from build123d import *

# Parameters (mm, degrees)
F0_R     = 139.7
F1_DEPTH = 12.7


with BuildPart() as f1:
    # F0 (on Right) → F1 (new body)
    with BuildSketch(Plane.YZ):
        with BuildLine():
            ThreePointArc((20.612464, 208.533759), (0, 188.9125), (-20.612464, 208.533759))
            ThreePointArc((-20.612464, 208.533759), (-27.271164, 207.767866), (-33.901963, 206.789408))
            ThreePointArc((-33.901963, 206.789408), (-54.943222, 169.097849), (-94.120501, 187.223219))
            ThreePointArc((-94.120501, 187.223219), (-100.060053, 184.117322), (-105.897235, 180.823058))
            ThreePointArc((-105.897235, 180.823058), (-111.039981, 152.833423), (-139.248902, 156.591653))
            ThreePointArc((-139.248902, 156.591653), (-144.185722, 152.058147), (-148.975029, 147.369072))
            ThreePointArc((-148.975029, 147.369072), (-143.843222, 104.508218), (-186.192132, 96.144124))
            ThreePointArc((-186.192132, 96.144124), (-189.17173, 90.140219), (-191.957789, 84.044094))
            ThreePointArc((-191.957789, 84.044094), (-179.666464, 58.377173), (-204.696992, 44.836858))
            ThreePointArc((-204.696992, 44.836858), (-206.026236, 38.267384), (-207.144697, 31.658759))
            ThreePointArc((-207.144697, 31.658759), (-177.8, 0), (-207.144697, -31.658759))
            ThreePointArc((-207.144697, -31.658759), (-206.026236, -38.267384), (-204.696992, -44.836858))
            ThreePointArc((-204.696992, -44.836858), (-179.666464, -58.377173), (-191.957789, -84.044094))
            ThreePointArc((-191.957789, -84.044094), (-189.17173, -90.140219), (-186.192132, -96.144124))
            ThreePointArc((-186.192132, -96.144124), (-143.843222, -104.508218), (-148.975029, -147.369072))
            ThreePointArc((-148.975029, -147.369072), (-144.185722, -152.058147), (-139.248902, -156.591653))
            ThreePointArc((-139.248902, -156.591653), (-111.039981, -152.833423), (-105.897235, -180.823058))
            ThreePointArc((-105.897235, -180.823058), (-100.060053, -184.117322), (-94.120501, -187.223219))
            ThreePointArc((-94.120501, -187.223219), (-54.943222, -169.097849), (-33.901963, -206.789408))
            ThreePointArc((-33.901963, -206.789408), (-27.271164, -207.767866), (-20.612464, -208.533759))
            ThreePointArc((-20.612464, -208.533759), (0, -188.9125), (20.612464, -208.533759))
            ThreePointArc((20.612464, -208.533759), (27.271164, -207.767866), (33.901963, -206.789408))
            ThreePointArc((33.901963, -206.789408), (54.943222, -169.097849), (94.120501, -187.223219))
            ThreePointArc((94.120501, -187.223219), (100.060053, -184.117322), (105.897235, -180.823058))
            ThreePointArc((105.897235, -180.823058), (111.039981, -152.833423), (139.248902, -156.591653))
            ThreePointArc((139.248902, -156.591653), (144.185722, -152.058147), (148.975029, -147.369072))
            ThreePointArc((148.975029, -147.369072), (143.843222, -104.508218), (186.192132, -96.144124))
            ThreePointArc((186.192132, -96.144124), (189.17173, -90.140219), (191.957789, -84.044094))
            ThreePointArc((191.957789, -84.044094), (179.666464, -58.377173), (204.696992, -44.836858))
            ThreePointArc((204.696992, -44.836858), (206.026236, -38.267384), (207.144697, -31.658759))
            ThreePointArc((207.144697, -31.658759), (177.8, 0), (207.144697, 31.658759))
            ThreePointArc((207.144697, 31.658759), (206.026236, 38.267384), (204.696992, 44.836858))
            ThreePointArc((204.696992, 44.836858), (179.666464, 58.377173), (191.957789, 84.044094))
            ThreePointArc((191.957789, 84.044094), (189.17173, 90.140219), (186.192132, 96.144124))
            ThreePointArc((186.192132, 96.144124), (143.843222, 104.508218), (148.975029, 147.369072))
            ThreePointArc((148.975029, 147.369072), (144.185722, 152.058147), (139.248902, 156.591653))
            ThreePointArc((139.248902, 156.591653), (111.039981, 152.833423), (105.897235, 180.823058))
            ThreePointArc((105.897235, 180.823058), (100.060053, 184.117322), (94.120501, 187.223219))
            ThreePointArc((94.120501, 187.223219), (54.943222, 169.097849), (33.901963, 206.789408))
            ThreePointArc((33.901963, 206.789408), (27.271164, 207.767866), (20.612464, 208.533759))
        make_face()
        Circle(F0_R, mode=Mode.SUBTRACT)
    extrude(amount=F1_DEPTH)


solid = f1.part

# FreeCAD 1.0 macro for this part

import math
import FreeCAD as App
import Part
import Sketcher
Q = App.Units.Quantity

doc = App.newDocument("Part")
body = doc.addObject("PartDesign::Body", "Body")

sketch1 = doc.addObject("Sketcher::SketchObject", "Sketch")
body.addObject(sketch1)
sketch1.AttachmentSupport = (doc.YZ_Plane, [""])
sketch1.MapMode = "FlatFace"
sketch1.addGeometry(Part.ArcOfCircle(Part.Circle(App.Vector(0, 210, 0), App.Vector(0, 0, 1), 21), math.radians(-177), math.radians(-3)), False)
sketch1.addGeometry(Part.ArcOfCircle(Part.Circle(App.Vector(0, 0, 0), App.Vector(0, 0, 1), 210), math.radians(95.65), math.radians(99.31)), False)
sketch1.addGeometry(Part.ArcOfCircle(Part.Circle(App.Vector(-65, 199, 0), App.Vector(0, 0, 1), 32), math.radians(-158), math.radians(14)), False)
sketch1.addGeometry(Part.ArcOfCircle(Part.Circle(App.Vector(0, 0, 0), App.Vector(0, 0, 1), 210), math.radians(116.69), math.radians(120.35)), False)
sketch1.addGeometry(Part.ArcOfCircle(Part.Circle(App.Vector(-123, 170, 0), App.Vector(0, 0, 1), 21), math.radians(-141), math.radians(33)), False)
sketch1.addGeometry(Part.ArcOfCircle(Part.Circle(App.Vector(0, 0, 0), App.Vector(0, 0, 1), 210), math.radians(131.65), math.radians(135.31)), False)
sketch1.addGeometry(Part.ArcOfCircle(Part.Circle(App.Vector(-170, 123, 0), App.Vector(0, 0, 1), 32), math.radians(-122), math.radians(50)), False)
sketch1.addGeometry(Part.ArcOfCircle(Part.Circle(App.Vector(0, 0, 0), App.Vector(0, 0, 1), 210), math.radians(152.69), math.radians(156.35)), False)
sketch1.addGeometry(Part.ArcOfCircle(Part.Circle(App.Vector(-199, 65, 0), App.Vector(0, 0, 1), 21), math.radians(-105), math.radians(69)), False)
sketch1.addGeometry(Part.ArcOfCircle(Part.Circle(App.Vector(0, 0, 0), App.Vector(0, 0, 1), 210), math.radians(167.65), math.radians(171.31)), False)
sketch1.addGeometry(Part.ArcOfCircle(Part.Circle(App.Vector(-210, 0, 0), App.Vector(0, 0, 1), 32), math.radians(-86), math.radians(86)), False)
sketch1.addGeometry(Part.ArcOfCircle(Part.Circle(App.Vector(0, 0, 0), App.Vector(0, 0, 1), 210), math.radians(-171.31), math.radians(-167.65)), False)
sketch1.addGeometry(Part.ArcOfCircle(Part.Circle(App.Vector(-199, -65, 0), App.Vector(0, 0, 1), 21), math.radians(-69), math.radians(105)), False)
sketch1.addGeometry(Part.ArcOfCircle(Part.Circle(App.Vector(0, 0, 0), App.Vector(0, 0, 1), 210), math.radians(-156.35), math.radians(-152.69)), False)
sketch1.addGeometry(Part.ArcOfCircle(Part.Circle(App.Vector(-170, -123, 0), App.Vector(0, 0, 1), 32), math.radians(-50), math.radians(122)), False)
sketch1.addGeometry(Part.ArcOfCircle(Part.Circle(App.Vector(0, 0, 0), App.Vector(0, 0, 1), 210), math.radians(-135.31), math.radians(-131.65)), False)
sketch1.addGeometry(Part.ArcOfCircle(Part.Circle(App.Vector(-123, -170, 0), App.Vector(0, 0, 1), 21), math.radians(-33), math.radians(141)), False)
sketch1.addGeometry(Part.ArcOfCircle(Part.Circle(App.Vector(0, 0, 0), App.Vector(0, 0, 1), 210), math.radians(-120.35), math.radians(-116.69)), False)
sketch1.addGeometry(Part.ArcOfCircle(Part.Circle(App.Vector(-65, -199, 0), App.Vector(0, 0, 1), 32), math.radians(-14), math.radians(158)), False)
sketch1.addGeometry(Part.ArcOfCircle(Part.Circle(App.Vector(0, 0, 0), App.Vector(0, 0, 1), 210), math.radians(-99.31), math.radians(-95.65)), False)
sketch1.addGeometry(Part.ArcOfCircle(Part.Circle(App.Vector(0, -210, 0), App.Vector(0, 0, 1), 21), math.radians(3), math.radians(177)), False)
sketch1.addGeometry(Part.ArcOfCircle(Part.Circle(App.Vector(0, 0, 0), App.Vector(0, 0, 1), 210), math.radians(-84.35), math.radians(-80.69)), False)
sketch1.addGeometry(Part.ArcOfCircle(Part.Circle(App.Vector(65, -199, 0), App.Vector(0, 0, 1), 32), math.radians(22), math.radians(194)), False)
sketch1.addGeometry(Part.ArcOfCircle(Part.Circle(App.Vector(0, 0, 0), App.Vector(0, 0, 1), 210), math.radians(-63.31), math.radians(-59.65)), False)
sketch1.addGeometry(Part.ArcOfCircle(Part.Circle(App.Vector(123, -170, 0), App.Vector(0, 0, 1), 21), math.radians(39), math.radians(213)), False)
sketch1.addGeometry(Part.ArcOfCircle(Part.Circle(App.Vector(0, 0, 0), App.Vector(0, 0, 1), 210), math.radians(-48.35), math.radians(-44.69)), False)
sketch1.addGeometry(Part.ArcOfCircle(Part.Circle(App.Vector(170, -123, 0), App.Vector(0, 0, 1), 32), math.radians(58), math.radians(230)), False)
sketch1.addGeometry(Part.ArcOfCircle(Part.Circle(App.Vector(0, 0, 0), App.Vector(0, 0, 1), 210), math.radians(-27.31), math.radians(-23.65)), False)
sketch1.addGeometry(Part.ArcOfCircle(Part.Circle(App.Vector(199, -65, 0), App.Vector(0, 0, 1), 21), math.radians(75), math.radians(249)), False)
sketch1.addGeometry(Part.ArcOfCircle(Part.Circle(App.Vector(0, 0, 0), App.Vector(0, 0, 1), 210), math.radians(-12.35), math.radians(-8.69)), False)
sketch1.addGeometry(Part.ArcOfCircle(Part.Circle(App.Vector(210, 0, 0), App.Vector(0, 0, 1), 32), math.radians(94), math.radians(266)), False)
sketch1.addGeometry(Part.ArcOfCircle(Part.Circle(App.Vector(0, 0, 0), App.Vector(0, 0, 1), 210), math.radians(8.69), math.radians(12.35)), False)
sketch1.addGeometry(Part.ArcOfCircle(Part.Circle(App.Vector(199, 65, 0), App.Vector(0, 0, 1), 21), math.radians(111), math.radians(285)), False)
sketch1.addGeometry(Part.ArcOfCircle(Part.Circle(App.Vector(0, 0, 0), App.Vector(0, 0, 1), 210), math.radians(23.65), math.radians(27.31)), False)
sketch1.addGeometry(Part.ArcOfCircle(Part.Circle(App.Vector(170, 123, 0), App.Vector(0, 0, 1), 32), math.radians(130), math.radians(302)), False)
sketch1.addGeometry(Part.ArcOfCircle(Part.Circle(App.Vector(0, 0, 0), App.Vector(0, 0, 1), 210), math.radians(44.69), math.radians(48.35)), False)
sketch1.addGeometry(Part.ArcOfCircle(Part.Circle(App.Vector(123, 170, 0), App.Vector(0, 0, 1), 21), math.radians(147), math.radians(321)), False)
sketch1.addGeometry(Part.ArcOfCircle(Part.Circle(App.Vector(0, 0, 0), App.Vector(0, 0, 1), 210), math.radians(59.65), math.radians(63.31)), False)
sketch1.addGeometry(Part.ArcOfCircle(Part.Circle(App.Vector(65, 199, 0), App.Vector(0, 0, 1), 32), math.radians(166), math.radians(338)), False)
sketch1.addGeometry(Part.ArcOfCircle(Part.Circle(App.Vector(0, 0, 0), App.Vector(0, 0, 1), 210), math.radians(80.69), math.radians(84.35)), False)
sketch1.addGeometry(Part.Circle(App.Vector(0, 0, 0), App.Vector(0, 0, 1), 140), False)
sketch1.addConstraint(Sketcher.Constraint("Coincident", 0, 1, 1, 1))
sketch1.addConstraint(Sketcher.Constraint("Coincident", 1, 2, 2, 2))
sketch1.addConstraint(Sketcher.Constraint("Coincident", 2, 1, 3, 1))
sketch1.addConstraint(Sketcher.Constraint("Coincident", 3, 2, 4, 2))
sketch1.addConstraint(Sketcher.Constraint("Coincident", 4, 1, 5, 1))
sketch1.addConstraint(Sketcher.Constraint("Coincident", 5, 2, 6, 2))
sketch1.addConstraint(Sketcher.Constraint("Coincident", 6, 1, 7, 1))
sketch1.addConstraint(Sketcher.Constraint("Coincident", 7, 2, 8, 2))
sketch1.addConstraint(Sketcher.Constraint("Coincident", 8, 1, 9, 1))
sketch1.addConstraint(Sketcher.Constraint("Coincident", 9, 2, 10, 2))
sketch1.addConstraint(Sketcher.Constraint("Coincident", 10, 1, 11, 1))
sketch1.addConstraint(Sketcher.Constraint("Coincident", 11, 2, 12, 2))
sketch1.addConstraint(Sketcher.Constraint("Coincident", 12, 1, 13, 1))
sketch1.addConstraint(Sketcher.Constraint("Coincident", 13, 2, 14, 2))
sketch1.addConstraint(Sketcher.Constraint("Coincident", 14, 1, 15, 1))
sketch1.addConstraint(Sketcher.Constraint("Coincident", 15, 2, 16, 2))
sketch1.addConstraint(Sketcher.Constraint("Coincident", 16, 1, 17, 1))
sketch1.addConstraint(Sketcher.Constraint("Coincident", 17, 2, 18, 2))
sketch1.addConstraint(Sketcher.Constraint("Coincident", 18, 1, 19, 1))
sketch1.addConstraint(Sketcher.Constraint("Coincident", 19, 2, 20, 2))
sketch1.addConstraint(Sketcher.Constraint("Coincident", 20, 1, 21, 1))
sketch1.addConstraint(Sketcher.Constraint("Coincident", 21, 2, 22, 2))
sketch1.addConstraint(Sketcher.Constraint("Coincident", 22, 1, 23, 1))
sketch1.addConstraint(Sketcher.Constraint("Coincident", 23, 2, 24, 2))
sketch1.addConstraint(Sketcher.Constraint("Coincident", 24, 1, 25, 1))
sketch1.addConstraint(Sketcher.Constraint("Coincident", 25, 2, 26, 2))
sketch1.addConstraint(Sketcher.Constraint("Coincident", 26, 1, 27, 1))
sketch1.addConstraint(Sketcher.Constraint("Coincident", 27, 2, 28, 2))
sketch1.addConstraint(Sketcher.Constraint("Coincident", 28, 1, 29, 1))
sketch1.addConstraint(Sketcher.Constraint("Coincident", 29, 2, 30, 2))
sketch1.addConstraint(Sketcher.Constraint("Coincident", 30, 1, 31, 1))
sketch1.addConstraint(Sketcher.Constraint("Coincident", 31, 2, 32, 2))
sketch1.addConstraint(Sketcher.Constraint("Coincident", 32, 1, 33, 1))
sketch1.addConstraint(Sketcher.Constraint("Coincident", 33, 2, 34, 2))
sketch1.addConstraint(Sketcher.Constraint("Coincident", 34, 1, 35, 1))
sketch1.addConstraint(Sketcher.Constraint("Coincident", 35, 2, 36, 2))
sketch1.addConstraint(Sketcher.Constraint("Coincident", 36, 1, 37, 1))
sketch1.addConstraint(Sketcher.Constraint("Coincident", 37, 2, 38, 2))
sketch1.addConstraint(Sketcher.Constraint("Coincident", 38, 1, 39, 1))
sketch1.addConstraint(Sketcher.Constraint("Coincident", 39, 2, 0, 2))
sketch1.addConstraint(Sketcher.Constraint("Coincident", 40, 3, -1, 1))
sketch1.addConstraint(Sketcher.Constraint("Equal", 0, 4))
sketch1.addConstraint(Sketcher.Constraint("Equal", 2, 6))
sketch1.addConstraint(Sketcher.Constraint("Equal", 4, 8))
sketch1.addConstraint(Sketcher.Constraint("Equal", 6, 10))
sketch1.addConstraint(Sketcher.Constraint("Equal", 9, 11))
sketch1.addConstraint(Sketcher.Constraint("Equal", 8, 12))
sketch1.addConstraint(Sketcher.Constraint("Equal", 7, 13))
sketch1.addConstraint(Sketcher.Constraint("Equal", 10, 14))
sketch1.addConstraint(Sketcher.Constraint("Equal", 5, 15))
sketch1.addConstraint(Sketcher.Constraint("Equal", 12, 16))
sketch1.addConstraint(Sketcher.Constraint("Equal", 3, 17))
sketch1.addConstraint(Sketcher.Constraint("Equal", 14, 18))
sketch1.addConstraint(Sketcher.Constraint("Equal", 1, 19))
sketch1.addConstraint(Sketcher.Constraint("Equal", 16, 20))
sketch1.addConstraint(Sketcher.Constraint("Equal", 19, 21))
sketch1.addConstraint(Sketcher.Constraint("Equal", 18, 22))
sketch1.addConstraint(Sketcher.Constraint("Equal", 17, 23))
sketch1.addConstraint(Sketcher.Constraint("Equal", 20, 24))
sketch1.addConstraint(Sketcher.Constraint("Equal", 15, 25))
sketch1.addConstraint(Sketcher.Constraint("Equal", 22, 26))
sketch1.addConstraint(Sketcher.Constraint("Equal", 13, 27))
sketch1.addConstraint(Sketcher.Constraint("Equal", 24, 28))
sketch1.addConstraint(Sketcher.Constraint("Equal", 11, 29))
sketch1.addConstraint(Sketcher.Constraint("Equal", 26, 30))
sketch1.addConstraint(Sketcher.Constraint("Equal", 29, 31))
sketch1.addConstraint(Sketcher.Constraint("Equal", 28, 32))
sketch1.addConstraint(Sketcher.Constraint("Equal", 27, 33))
sketch1.addConstraint(Sketcher.Constraint("Equal", 30, 34))
sketch1.addConstraint(Sketcher.Constraint("Equal", 25, 35))
sketch1.addConstraint(Sketcher.Constraint("Equal", 32, 36))
sketch1.addConstraint(Sketcher.Constraint("Equal", 23, 37))
sketch1.addConstraint(Sketcher.Constraint("Equal", 34, 38))
sketch1.addConstraint(Sketcher.Constraint("Equal", 21, 39))
sketch1.addConstraint(Sketcher.Constraint("Symmetric", 0, 3, 20, 3, -1, 1))
sketch1.addConstraint(Sketcher.Constraint("Symmetric", 1, 3, 21, 3, -1, 1))
sketch1.addConstraint(Sketcher.Constraint("Symmetric", 2, 3, 22, 3, -1, 1))
sketch1.addConstraint(Sketcher.Constraint("Symmetric", 3, 3, 23, 3, -1, 1))
sketch1.addConstraint(Sketcher.Constraint("Symmetric", 4, 3, 24, 3, -1, 1))
sketch1.addConstraint(Sketcher.Constraint("Symmetric", 5, 3, 25, 3, -1, 1))
sketch1.addConstraint(Sketcher.Constraint("Symmetric", 6, 3, 26, 3, -1, 1))
sketch1.addConstraint(Sketcher.Constraint("Symmetric", 7, 3, 27, 3, -1, 1))
sketch1.addConstraint(Sketcher.Constraint("Symmetric", 8, 3, 28, 3, -1, 1))
sketch1.addConstraint(Sketcher.Constraint("Symmetric", 9, 3, 29, 3, -1, 1))
sketch1.addConstraint(Sketcher.Constraint("Symmetric", 10, 3, 30, 3, -1, 1))
sketch1.addConstraint(Sketcher.Constraint("Symmetric", 11, 3, 31, 3, -1, 1))
sketch1.addConstraint(Sketcher.Constraint("Symmetric", 12, 3, 32, 3, -1, 1))
sketch1.addConstraint(Sketcher.Constraint("Symmetric", 13, 3, 33, 3, -1, 1))
sketch1.addConstraint(Sketcher.Constraint("Symmetric", 14, 3, 34, 3, -1, 1))
sketch1.addConstraint(Sketcher.Constraint("Symmetric", 15, 3, 35, 3, -1, 1))
sketch1.addConstraint(Sketcher.Constraint("Symmetric", 16, 3, 36, 3, -1, 1))
sketch1.addConstraint(Sketcher.Constraint("Symmetric", 17, 3, 37, 3, -1, 1))
sketch1.addConstraint(Sketcher.Constraint("Symmetric", 18, 3, 38, 3, -1, 1))
sketch1.addConstraint(Sketcher.Constraint("Symmetric", 19, 3, 39, 3, -1, 1))
sketch1.addConstraint(Sketcher.Constraint("Symmetric", 19, 3, 21, 3, -2))
sketch1.addConstraint(Sketcher.Constraint("Symmetric", 18, 3, 22, 3, -2))
sketch1.addConstraint(Sketcher.Constraint("Symmetric", 17, 3, 23, 3, -2))
sketch1.addConstraint(Sketcher.Constraint("Symmetric", 16, 3, 24, 3, -2))
sketch1.addConstraint(Sketcher.Constraint("Symmetric", 15, 3, 25, 3, -2))
sketch1.addConstraint(Sketcher.Constraint("Symmetric", 14, 3, 26, 3, -2))
sketch1.addConstraint(Sketcher.Constraint("Symmetric", 13, 3, 27, 3, -2))
sketch1.addConstraint(Sketcher.Constraint("Symmetric", 12, 3, 28, 3, -2))
sketch1.addConstraint(Sketcher.Constraint("Symmetric", 11, 3, 29, 3, -2))
sketch1.addConstraint(Sketcher.Constraint("PointOnObject", 0, 3, -2))
sketch1.addConstraint(Sketcher.Constraint("PointOnObject", 10, 3, -1))
sketch1.addConstraint(Sketcher.Constraint("Diameter", 40, Q("11 in")))
sketch1.addConstraint(Sketcher.Constraint("Radius", 2, Q("1.25 in")))
sketch1.addConstraint(Sketcher.Constraint("Radius", 0, Q("0.8125 in")))
sketch1.addConstraint(Sketcher.Constraint("DistanceY", -1, 1, 0, 3, Q("8.25 in")))
sketch1.addConstraint(Sketcher.Constraint("DistanceX", 10, 3, -1, 1, Q("8.25 in")))
sketch1.addConstraint(Sketcher.Constraint("Radius", 1, Q("209.549102 mm")))
sketch1.addConstraint(Sketcher.Constraint("Radius", 3, Q("209.550449 mm")))
sketch1.addConstraint(Sketcher.Constraint("Radius", 5, Q("209.550349 mm")))
sketch1.addConstraint(Sketcher.Constraint("Radius", 7, Q("209.550157 mm")))
sketch1.addConstraint(Sketcher.Constraint("Radius", 9, Q("209.549274 mm")))
sketch1.addConstraint(Sketcher.Constraint("DistanceY", 3, 3, -1, 1, Q("0.000399 mm")))
sketch1.addConstraint(Sketcher.Constraint("DistanceX", 4, 3, -1, 1, Q("123.1704 mm")))
sketch1.addConstraint(Sketcher.Constraint("DistanceY", -1, 1, 6, 3, Q("123.1704 mm")))
sketch1.addConstraint(Sketcher.Constraint("DistanceX", 2, 1, -1, 1, Q("94.120501 mm")))
sketch1.addConstraint(Sketcher.Constraint("DistanceX", 4, 1, -1, 1, Q("139.248902 mm")))
sketch1.addConstraint(Sketcher.Constraint("DistanceX", 1, 3, -1, 1, Q("0.000118 mm")))
sketch1.addConstraint(Sketcher.Constraint("DistanceY", -1, 1, 1, 3, Q("0.00089 mm")))
sketch1.addConstraint(Sketcher.Constraint("DistanceX", 2, 3, -1, 1, Q("64.754512 mm")))
sketch1.addConstraint(Sketcher.Constraint("DistanceY", -1, 1, 4, 3, Q("169.529511 mm")))
sketch1.addConstraint(Sketcher.Constraint("DistanceX", 6, 3, -1, 1, Q("169.529512 mm")))
sketch1.addConstraint(Sketcher.Constraint("DistanceY", -1, 1, 8, 3, Q("64.754512 mm")))
sketch1.addConstraint(Sketcher.Constraint("DistanceY", -1, 1, 2, 1, Q("187.223219 mm")))
sketch1.addConstraint(Sketcher.Constraint("DistanceX", 7, 2, -1, 1, Q("191.957789 mm")))
sketch1.addConstraint(Sketcher.Constraint("DistanceX", 8, 1, -1, 1, Q("204.696992 mm")))
sketch1.addConstraint(Sketcher.Constraint("DistanceY", -1, 1, 8, 1, Q("44.836858 mm")))
sketch1.addConstraint(Sketcher.Constraint("DistanceX", -1, 1, 5, 3, Q("0.000236 mm")))
sketch1.addConstraint(Sketcher.Constraint("DistanceX", -1, 1, 7, 3, Q("0.000143 mm")))
sketch1.addConstraint(Sketcher.Constraint("DistanceX", 9, 3, -1, 1, Q("0.000715 mm")))
pad1 = doc.addObject("PartDesign::Pad", "Pad")
body.addObject(pad1)
pad1.Profile = sketch1
pad1.Length = Q("0.5 in")

doc.recompute()
